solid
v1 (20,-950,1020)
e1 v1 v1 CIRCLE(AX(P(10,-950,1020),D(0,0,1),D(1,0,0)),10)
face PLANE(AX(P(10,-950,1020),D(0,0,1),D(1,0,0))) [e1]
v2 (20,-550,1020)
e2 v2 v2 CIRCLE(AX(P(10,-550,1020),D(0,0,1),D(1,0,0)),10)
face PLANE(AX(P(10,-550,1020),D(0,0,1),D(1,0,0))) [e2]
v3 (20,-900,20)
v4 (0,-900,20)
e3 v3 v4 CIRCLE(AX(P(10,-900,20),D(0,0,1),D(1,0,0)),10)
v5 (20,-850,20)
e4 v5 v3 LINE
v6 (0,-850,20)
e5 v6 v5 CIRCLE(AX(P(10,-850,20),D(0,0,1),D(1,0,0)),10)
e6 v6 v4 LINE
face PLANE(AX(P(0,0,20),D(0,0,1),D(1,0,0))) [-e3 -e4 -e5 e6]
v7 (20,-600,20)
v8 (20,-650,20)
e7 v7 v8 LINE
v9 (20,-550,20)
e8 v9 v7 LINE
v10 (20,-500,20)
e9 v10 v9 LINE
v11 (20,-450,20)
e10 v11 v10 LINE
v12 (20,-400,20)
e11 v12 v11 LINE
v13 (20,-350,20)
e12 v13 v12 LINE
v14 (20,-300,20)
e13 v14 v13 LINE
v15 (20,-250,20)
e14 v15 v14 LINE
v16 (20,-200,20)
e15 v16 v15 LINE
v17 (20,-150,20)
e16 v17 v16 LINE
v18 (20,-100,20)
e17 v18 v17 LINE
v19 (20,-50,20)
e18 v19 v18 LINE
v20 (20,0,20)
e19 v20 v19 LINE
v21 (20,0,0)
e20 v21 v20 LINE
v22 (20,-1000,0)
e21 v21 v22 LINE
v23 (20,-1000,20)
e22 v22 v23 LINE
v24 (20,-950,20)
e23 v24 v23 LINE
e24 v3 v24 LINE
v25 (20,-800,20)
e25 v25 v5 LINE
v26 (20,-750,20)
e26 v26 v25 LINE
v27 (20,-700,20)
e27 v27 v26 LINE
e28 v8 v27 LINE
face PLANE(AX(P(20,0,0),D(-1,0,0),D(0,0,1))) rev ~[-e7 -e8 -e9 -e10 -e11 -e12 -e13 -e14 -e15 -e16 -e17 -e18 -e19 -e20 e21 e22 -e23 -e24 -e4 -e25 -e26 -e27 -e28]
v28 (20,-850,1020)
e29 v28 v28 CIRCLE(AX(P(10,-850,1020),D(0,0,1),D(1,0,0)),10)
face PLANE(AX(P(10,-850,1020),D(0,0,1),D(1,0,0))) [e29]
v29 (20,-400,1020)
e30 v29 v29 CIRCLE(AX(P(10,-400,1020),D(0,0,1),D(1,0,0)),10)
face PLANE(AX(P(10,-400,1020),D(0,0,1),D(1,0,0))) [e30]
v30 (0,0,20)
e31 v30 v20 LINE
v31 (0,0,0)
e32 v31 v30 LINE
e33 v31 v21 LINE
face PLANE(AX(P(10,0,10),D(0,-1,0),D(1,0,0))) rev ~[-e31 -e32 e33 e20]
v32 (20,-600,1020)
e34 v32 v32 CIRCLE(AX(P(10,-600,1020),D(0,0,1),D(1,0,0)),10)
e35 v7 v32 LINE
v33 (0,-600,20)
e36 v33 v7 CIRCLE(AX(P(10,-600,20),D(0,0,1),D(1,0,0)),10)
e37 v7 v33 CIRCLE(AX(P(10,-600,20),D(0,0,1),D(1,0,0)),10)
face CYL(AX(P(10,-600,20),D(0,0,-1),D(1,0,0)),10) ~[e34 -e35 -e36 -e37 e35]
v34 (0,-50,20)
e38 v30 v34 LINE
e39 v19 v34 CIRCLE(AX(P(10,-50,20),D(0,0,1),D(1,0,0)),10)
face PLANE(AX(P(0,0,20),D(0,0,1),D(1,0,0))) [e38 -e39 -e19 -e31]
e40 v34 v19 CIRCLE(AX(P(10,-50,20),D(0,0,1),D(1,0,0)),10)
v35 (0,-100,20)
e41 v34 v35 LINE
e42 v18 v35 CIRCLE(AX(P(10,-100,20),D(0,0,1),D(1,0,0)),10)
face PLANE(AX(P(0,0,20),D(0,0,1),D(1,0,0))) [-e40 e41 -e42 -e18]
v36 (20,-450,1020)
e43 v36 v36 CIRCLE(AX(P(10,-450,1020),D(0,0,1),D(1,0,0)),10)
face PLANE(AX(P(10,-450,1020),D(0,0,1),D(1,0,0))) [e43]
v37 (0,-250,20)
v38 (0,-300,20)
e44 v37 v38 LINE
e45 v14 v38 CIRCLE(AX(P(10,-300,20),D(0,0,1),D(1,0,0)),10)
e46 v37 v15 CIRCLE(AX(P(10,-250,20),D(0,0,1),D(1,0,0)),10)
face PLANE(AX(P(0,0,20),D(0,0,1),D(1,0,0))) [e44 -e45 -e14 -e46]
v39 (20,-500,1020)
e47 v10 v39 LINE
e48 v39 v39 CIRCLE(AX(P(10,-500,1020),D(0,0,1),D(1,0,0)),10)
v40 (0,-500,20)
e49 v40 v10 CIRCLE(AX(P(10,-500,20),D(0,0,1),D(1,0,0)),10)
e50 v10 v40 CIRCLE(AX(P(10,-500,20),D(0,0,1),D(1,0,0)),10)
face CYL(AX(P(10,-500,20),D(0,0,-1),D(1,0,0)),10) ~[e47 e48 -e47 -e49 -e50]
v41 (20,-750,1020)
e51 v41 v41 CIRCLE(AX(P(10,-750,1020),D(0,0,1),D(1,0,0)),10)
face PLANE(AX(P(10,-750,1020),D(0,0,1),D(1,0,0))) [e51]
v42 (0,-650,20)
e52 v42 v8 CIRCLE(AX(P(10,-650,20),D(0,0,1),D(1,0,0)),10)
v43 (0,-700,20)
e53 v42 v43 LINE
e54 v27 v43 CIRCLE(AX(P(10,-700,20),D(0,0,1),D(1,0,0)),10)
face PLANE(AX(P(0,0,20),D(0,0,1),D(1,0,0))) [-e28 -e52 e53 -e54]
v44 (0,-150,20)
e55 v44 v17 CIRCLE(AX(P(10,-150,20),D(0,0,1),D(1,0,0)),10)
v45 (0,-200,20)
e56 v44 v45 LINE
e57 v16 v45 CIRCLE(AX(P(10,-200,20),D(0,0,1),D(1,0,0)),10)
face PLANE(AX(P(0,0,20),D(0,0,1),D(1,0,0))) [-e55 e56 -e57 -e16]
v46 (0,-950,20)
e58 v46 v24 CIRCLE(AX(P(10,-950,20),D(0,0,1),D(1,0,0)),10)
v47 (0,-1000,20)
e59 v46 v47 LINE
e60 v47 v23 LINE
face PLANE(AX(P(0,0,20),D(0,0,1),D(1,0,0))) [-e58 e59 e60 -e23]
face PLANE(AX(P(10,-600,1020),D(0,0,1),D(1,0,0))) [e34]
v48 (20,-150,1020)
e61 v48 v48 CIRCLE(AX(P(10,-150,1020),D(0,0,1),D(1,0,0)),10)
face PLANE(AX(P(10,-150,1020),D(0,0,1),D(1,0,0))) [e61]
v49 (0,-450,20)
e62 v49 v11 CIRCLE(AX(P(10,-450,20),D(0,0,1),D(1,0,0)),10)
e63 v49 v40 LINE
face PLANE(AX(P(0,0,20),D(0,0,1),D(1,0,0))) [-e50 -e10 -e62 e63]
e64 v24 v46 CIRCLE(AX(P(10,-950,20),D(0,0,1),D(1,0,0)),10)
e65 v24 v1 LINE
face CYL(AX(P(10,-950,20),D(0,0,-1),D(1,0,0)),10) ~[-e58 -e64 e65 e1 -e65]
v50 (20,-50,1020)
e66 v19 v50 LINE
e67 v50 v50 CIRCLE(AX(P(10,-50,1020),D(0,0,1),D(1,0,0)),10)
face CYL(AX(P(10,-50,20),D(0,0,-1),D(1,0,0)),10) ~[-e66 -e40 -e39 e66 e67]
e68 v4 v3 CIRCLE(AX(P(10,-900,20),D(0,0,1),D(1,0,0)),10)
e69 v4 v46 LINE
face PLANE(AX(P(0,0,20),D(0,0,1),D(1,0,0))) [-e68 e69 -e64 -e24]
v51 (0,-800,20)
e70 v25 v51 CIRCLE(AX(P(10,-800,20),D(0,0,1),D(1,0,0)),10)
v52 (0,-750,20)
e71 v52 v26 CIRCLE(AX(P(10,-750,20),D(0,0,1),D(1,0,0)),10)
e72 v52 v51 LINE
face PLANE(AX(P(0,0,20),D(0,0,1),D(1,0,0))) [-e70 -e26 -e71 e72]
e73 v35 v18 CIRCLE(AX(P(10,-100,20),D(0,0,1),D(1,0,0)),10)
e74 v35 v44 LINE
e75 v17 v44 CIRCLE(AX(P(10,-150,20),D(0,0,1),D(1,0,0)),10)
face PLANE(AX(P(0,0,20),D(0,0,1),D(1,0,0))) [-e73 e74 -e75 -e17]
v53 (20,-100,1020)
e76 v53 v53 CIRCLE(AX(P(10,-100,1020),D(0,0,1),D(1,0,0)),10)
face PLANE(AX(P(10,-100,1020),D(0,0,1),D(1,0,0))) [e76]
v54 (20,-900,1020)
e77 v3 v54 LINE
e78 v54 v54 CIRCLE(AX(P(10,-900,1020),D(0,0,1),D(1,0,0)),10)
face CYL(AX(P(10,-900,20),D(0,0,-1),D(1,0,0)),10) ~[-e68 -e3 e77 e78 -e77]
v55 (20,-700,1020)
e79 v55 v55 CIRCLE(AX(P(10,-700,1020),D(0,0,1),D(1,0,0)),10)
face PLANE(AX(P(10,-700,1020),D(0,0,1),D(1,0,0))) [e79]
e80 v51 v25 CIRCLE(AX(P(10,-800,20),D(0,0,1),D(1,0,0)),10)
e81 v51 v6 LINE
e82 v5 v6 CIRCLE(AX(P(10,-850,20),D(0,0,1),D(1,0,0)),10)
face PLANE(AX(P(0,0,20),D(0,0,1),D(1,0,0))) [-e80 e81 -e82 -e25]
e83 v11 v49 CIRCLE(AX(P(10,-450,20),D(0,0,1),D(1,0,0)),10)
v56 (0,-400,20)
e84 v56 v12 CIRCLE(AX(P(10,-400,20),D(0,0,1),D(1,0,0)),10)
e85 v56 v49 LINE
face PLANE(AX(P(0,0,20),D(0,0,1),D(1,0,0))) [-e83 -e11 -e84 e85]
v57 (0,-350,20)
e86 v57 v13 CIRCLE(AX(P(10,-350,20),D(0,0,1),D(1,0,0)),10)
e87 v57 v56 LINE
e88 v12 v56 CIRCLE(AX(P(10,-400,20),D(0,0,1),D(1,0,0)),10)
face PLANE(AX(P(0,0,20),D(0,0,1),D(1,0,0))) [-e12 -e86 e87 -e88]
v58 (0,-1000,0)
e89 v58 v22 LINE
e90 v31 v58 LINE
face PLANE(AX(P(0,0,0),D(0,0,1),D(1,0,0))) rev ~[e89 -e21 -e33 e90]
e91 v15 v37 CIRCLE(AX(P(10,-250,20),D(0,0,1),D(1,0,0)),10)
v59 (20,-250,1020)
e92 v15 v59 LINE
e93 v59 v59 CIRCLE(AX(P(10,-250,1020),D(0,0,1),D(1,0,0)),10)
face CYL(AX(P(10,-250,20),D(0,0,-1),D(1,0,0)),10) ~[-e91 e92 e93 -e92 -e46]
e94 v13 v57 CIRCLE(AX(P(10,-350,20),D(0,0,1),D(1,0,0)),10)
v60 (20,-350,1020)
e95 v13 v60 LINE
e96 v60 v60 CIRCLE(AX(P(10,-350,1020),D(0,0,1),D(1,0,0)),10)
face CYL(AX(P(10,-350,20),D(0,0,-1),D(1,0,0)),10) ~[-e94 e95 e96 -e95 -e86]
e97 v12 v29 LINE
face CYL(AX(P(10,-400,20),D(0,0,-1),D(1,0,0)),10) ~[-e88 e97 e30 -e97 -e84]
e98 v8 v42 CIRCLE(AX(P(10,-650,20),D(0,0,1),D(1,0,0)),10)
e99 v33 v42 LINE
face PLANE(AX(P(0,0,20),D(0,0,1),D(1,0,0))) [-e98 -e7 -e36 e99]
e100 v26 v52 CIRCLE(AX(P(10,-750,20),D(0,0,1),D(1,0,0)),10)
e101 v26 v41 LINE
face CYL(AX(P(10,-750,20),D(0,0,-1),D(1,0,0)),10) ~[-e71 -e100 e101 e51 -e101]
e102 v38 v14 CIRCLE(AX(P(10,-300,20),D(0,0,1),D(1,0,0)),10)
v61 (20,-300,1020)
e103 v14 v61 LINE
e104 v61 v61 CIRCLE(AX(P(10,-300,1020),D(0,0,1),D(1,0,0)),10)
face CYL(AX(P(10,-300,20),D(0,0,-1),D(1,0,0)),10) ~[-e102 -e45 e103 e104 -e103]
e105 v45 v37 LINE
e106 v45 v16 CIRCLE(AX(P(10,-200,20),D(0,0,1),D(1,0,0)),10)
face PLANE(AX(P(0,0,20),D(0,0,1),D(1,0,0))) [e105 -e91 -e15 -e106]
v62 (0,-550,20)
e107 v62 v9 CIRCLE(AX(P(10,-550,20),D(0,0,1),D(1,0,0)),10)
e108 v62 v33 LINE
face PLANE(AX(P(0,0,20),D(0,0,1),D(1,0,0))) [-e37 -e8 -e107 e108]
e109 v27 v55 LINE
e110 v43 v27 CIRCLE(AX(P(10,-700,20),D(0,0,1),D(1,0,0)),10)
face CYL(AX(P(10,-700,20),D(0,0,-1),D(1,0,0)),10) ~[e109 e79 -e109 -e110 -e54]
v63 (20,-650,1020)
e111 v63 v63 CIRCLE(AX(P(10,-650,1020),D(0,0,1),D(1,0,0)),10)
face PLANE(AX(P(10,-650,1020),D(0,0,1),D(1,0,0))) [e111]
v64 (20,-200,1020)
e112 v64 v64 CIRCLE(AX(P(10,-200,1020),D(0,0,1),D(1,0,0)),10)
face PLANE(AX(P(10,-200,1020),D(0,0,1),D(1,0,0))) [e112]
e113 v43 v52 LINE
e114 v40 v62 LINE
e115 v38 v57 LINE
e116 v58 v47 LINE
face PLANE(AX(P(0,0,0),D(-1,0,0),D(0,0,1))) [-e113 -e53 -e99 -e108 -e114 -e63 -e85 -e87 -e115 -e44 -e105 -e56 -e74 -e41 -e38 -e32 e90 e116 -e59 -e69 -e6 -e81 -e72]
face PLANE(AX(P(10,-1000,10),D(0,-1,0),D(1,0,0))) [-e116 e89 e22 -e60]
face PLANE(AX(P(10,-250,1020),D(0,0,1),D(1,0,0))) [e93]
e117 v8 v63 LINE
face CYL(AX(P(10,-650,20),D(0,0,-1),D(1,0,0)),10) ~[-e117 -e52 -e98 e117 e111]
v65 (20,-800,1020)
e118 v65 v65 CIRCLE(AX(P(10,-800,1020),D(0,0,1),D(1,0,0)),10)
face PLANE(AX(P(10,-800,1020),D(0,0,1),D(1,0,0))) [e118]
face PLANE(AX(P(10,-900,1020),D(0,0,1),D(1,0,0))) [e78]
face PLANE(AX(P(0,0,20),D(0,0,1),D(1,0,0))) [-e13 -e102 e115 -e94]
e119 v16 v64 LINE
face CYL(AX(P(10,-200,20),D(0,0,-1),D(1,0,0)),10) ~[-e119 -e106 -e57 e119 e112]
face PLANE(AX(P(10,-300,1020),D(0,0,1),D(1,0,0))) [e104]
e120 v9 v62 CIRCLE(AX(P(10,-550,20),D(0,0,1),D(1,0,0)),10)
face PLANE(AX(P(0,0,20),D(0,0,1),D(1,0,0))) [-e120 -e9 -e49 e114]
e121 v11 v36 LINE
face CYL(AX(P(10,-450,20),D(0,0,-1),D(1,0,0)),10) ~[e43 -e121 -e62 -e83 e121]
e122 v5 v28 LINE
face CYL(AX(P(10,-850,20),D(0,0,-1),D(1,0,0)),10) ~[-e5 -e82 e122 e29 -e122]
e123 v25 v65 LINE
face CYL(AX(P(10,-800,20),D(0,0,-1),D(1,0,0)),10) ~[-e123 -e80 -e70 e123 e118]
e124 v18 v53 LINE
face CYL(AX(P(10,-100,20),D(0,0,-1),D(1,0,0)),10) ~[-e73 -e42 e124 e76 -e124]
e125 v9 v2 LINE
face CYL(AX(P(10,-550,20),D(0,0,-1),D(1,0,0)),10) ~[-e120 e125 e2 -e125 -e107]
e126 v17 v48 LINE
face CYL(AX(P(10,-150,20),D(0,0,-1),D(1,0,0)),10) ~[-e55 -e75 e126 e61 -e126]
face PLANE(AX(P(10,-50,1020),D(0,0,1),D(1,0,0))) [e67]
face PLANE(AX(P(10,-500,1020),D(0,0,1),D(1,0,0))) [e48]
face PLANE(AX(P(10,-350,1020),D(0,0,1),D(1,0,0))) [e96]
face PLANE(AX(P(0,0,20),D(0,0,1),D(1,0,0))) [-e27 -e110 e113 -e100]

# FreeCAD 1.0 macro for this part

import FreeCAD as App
import Part
import Sketcher

V = App.Vector


def add_polygon(sketch, points):
    """Adds a closed chain of lines whose ends are joined by coincident constraints."""
    first, n = sketch.GeometryCount, len(points)
    for a, b in zip(points, points[1:] + points[:1]):
        sketch.addGeometry(Part.LineSegment(App.Vector(*a, 0), App.Vector(*b, 0)), False)
    for i in range(n):
        sketch.addConstraint(Sketcher.Constraint("Coincident", first + i, 2, first + (i + 1) % n, 1))

doc = App.newDocument("Part")
body = doc.addObject("PartDesign::Body", "Body")

# Sketch on XZ plane
sketch1 = doc.addObject("Sketcher::SketchObject", "Sketch")
body.addObject(sketch1)
sketch1.AttachmentSupport = (doc.XZ_Plane, [""])
sketch1.MapMode = "FlatFace"
add_polygon(sketch1, [(0, 20), (0, 0), (20, 0), (20, 20)])  # lines 0-3
sketch1.addConstraint(Sketcher.Constraint("Vertical", 0))
sketch1.addConstraint(Sketcher.Constraint("Horizontal", 1))
sketch1.addConstraint(Sketcher.Constraint("Vertical", 2))
sketch1.addConstraint(Sketcher.Constraint("Horizontal", 3))
sketch1.addConstraint(Sketcher.Constraint("Coincident", 0, 2, -1, 1))
sketch1.addConstraint(Sketcher.Constraint("Equal", 3, 0))
sketch1.addConstraint(Sketcher.Constraint("DistanceX", 1, 1, 1, 2, 20.0))
pad1 = doc.addObject("PartDesign::Pad", "Pad")
body.addObject(pad1)
pad1.Profile = sketch1
pad1.Length = 1000

# Sketch on XY plane
sketch2 = doc.addObject("Sketcher::SketchObject", "Sketch001")
body.addObject(sketch2)
sketch2.AttachmentSupport = (doc.XY_Plane, [""])
sketch2.MapMode = "FlatFace"
sketch2.AttachmentOffset = App.Placement(V(0, 0, 20), App.Rotation())
sketch2.addGeometry(Part.Circle(V(10, -50, 0), V(0, 0, 1), 10), False)
sketch2.addGeometry(Part.Circle(V(10, -100, 0), V(0, 0, 1), 10), False)
sketch2.addGeometry(Part.Circle(V(10, -150, 0), V(0, 0, 1), 10), False)
sketch2.addGeometry(Part.Circle(V(10, -200, 0), V(0, 0, 1), 10), False)
sketch2.addGeometry(Part.Circle(V(10, -250, 0), V(0, 0, 1), 10), False)
sketch2.addGeometry(Part.Circle(V(10, -300, 0), V(0, 0, 1), 10), False)
sketch2.addGeometry(Part.Circle(V(10, -350, 0), V(0, 0, 1), 10), False)
sketch2.addGeometry(Part.Circle(V(10, -400, 0), V(0, 0, 1), 10), False)
sketch2.addGeometry(Part.Circle(V(10, -450, 0), V(0, 0, 1), 10), False)
sketch2.addGeometry(Part.Circle(V(10, -500, 0), V(0, 0, 1), 10), False)
sketch2.addGeometry(Part.Circle(V(10, -550, 0), V(0, 0, 1), 10), False)
sketch2.addGeometry(Part.Circle(V(10, -600, 0), V(0, 0, 1), 10), False)
sketch2.addGeometry(Part.Circle(V(10, -650, 0), V(0, 0, 1), 10), False)
sketch2.addGeometry(Part.Circle(V(10, -700, 0), V(0, 0, 1), 10), False)
sketch2.addGeometry(Part.Circle(V(10, -750, 0), V(0, 0, 1), 10), False)
sketch2.addGeometry(Part.Circle(V(10, -800, 0), V(0, 0, 1), 10), False)
sketch2.addGeometry(Part.Circle(V(10, -850, 0), V(0, 0, 1), 10), False)
sketch2.addGeometry(Part.Circle(V(10, -900, 0), V(0, 0, 1), 10), False)
sketch2.addGeometry(Part.Circle(V(10, -950, 0), V(0, 0, 1), 10), False)
sketch2.addConstraint(Sketcher.Constraint("Equal", 0, 1))
sketch2.addConstraint(Sketcher.Constraint("Equal", 1, 2))
sketch2.addConstraint(Sketcher.Constraint("Equal", 2, 3))
sketch2.addConstraint(Sketcher.Constraint("Equal", 3, 4))
sketch2.addConstraint(Sketcher.Constraint("Equal", 4, 5))
sketch2.addConstraint(Sketcher.Constraint("Equal", 5, 6))
sketch2.addConstraint(Sketcher.Constraint("Equal", 6, 7))
sketch2.addConstraint(Sketcher.Constraint("Equal", 7, 8))
sketch2.addConstraint(Sketcher.Constraint("Equal", 8, 9))
sketch2.addConstraint(Sketcher.Constraint("Equal", 9, 10))
sketch2.addConstraint(Sketcher.Constraint("Equal", 10, 11))
sketch2.addConstraint(Sketcher.Constraint("Equal", 11, 12))
sketch2.addConstraint(Sketcher.Constraint("Equal", 12, 13))
sketch2.addConstraint(Sketcher.Constraint("Equal", 13, 14))
sketch2.addConstraint(Sketcher.Constraint("Equal", 14, 15))
sketch2.addConstraint(Sketcher.Constraint("Equal", 15, 16))
sketch2.addConstraint(Sketcher.Constraint("Equal", 16, 17))
sketch2.addConstraint(Sketcher.Constraint("Equal", 17, 18))
sketch2.addConstraint(Sketcher.Constraint("Vertical", 0, 3, 1, 3))
sketch2.addConstraint(Sketcher.Constraint("Vertical", 1, 3, 2, 3))
sketch2.addConstraint(Sketcher.Constraint("Vertical", 2, 3, 3, 3))
sketch2.addConstraint(Sketcher.Constraint("Vertical", 3, 3, 4, 3))
sketch2.addConstraint(Sketcher.Constraint("Vertical", 4, 3, 5, 3))
sketch2.addConstraint(Sketcher.Constraint("Vertical", 5, 3, 6, 3))
sketch2.addConstraint(Sketcher.Constraint("Vertical", 6, 3, 7, 3))
sketch2.addConstraint(Sketcher.Constraint("Vertical", 7, 3, 8, 3))
sketch2.addConstraint(Sketcher.Constraint("Vertical", 8, 3, 9, 3))
sketch2.addConstraint(Sketcher.Constraint("Vertical", 9, 3, 10, 3))
sketch2.addConstraint(Sketcher.Constraint("Vertical", 10, 3, 11, 3))
sketch2.addConstraint(Sketcher.Constraint("Vertical", 11, 3, 12, 3))
sketch2.addConstraint(Sketcher.Constraint("Vertical", 12, 3, 13, 3))
sketch2.addConstraint(Sketcher.Constraint("Vertical", 13, 3, 14, 3))
sketch2.addConstraint(Sketcher.Constraint("Vertical", 14, 3, 15, 3))
sketch2.addConstraint(Sketcher.Constraint("Vertical", 15, 3, 16, 3))
sketch2.addConstraint(Sketcher.Constraint("Vertical", 16, 3, 17, 3))
sketch2.addConstraint(Sketcher.Constraint("Vertical", 17, 3, 18, 3))
sketch2.addConstraint(Sketcher.Constraint("Diameter", 0, 20.0))
sketch2.addConstraint(Sketcher.Constraint("DistanceX", -1, 1, 0, 3, 10.0))
sketch2.addConstraint(Sketcher.Constraint("DistanceY", 0, 3, -1, 1, 50.0))
sketch2.addConstraint(Sketcher.Constraint("DistanceY", 1, 3, -1, 1, 100.0))
sketch2.addConstraint(Sketcher.Constraint("DistanceY", 2, 3, -1, 1, 150.0))
sketch2.addConstraint(Sketcher.Constraint("DistanceY", 3, 3, -1, 1, 200.0))
sketch2.addConstraint(Sketcher.Constraint("DistanceY", 4, 3, -1, 1, 250.0))
sketch2.addConstraint(Sketcher.Constraint("DistanceY", 5, 3, -1, 1, 300.0))
sketch2.addConstraint(Sketcher.Constraint("DistanceY", 6, 3, -1, 1, 350.0))
sketch2.addConstraint(Sketcher.Constraint("DistanceY", 7, 3, -1, 1, 400.0))
sketch2.addConstraint(Sketcher.Constraint("DistanceY", 8, 3, -1, 1, 450.0))
sketch2.addConstraint(Sketcher.Constraint("DistanceY", 9, 3, -1, 1, 500.0))
sketch2.addConstraint(Sketcher.Constraint("DistanceY", 10, 3, -1, 1, 550.0))
sketch2.addConstraint(Sketcher.Constraint("DistanceY", 11, 3, -1, 1, 600.0))
sketch2.addConstraint(Sketcher.Constraint("DistanceY", 12, 3, -1, 1, 650.0))
sketch2.addConstraint(Sketcher.Constraint("DistanceY", 13, 3, -1, 1, 700.0))
sketch2.addConstraint(Sketcher.Constraint("DistanceY", 14, 3, -1, 1, 750.0))
sketch2.addConstraint(Sketcher.Constraint("DistanceY", 15, 3, -1, 1, 800.0))
sketch2.addConstraint(Sketcher.Constraint("DistanceY", 16, 3, -1, 1, 850.0))
sketch2.addConstraint(Sketcher.Constraint("DistanceY", 17, 3, -1, 1, 900.0))
sketch2.addConstraint(Sketcher.Constraint("DistanceY", 18, 3, -1, 1, 950.0))
pad2 = doc.addObject("PartDesign::Pad", "Pad001")
body.addObject(pad2)
pad2.Profile = sketch2
pad2.Length = 1000

doc.recompute()
